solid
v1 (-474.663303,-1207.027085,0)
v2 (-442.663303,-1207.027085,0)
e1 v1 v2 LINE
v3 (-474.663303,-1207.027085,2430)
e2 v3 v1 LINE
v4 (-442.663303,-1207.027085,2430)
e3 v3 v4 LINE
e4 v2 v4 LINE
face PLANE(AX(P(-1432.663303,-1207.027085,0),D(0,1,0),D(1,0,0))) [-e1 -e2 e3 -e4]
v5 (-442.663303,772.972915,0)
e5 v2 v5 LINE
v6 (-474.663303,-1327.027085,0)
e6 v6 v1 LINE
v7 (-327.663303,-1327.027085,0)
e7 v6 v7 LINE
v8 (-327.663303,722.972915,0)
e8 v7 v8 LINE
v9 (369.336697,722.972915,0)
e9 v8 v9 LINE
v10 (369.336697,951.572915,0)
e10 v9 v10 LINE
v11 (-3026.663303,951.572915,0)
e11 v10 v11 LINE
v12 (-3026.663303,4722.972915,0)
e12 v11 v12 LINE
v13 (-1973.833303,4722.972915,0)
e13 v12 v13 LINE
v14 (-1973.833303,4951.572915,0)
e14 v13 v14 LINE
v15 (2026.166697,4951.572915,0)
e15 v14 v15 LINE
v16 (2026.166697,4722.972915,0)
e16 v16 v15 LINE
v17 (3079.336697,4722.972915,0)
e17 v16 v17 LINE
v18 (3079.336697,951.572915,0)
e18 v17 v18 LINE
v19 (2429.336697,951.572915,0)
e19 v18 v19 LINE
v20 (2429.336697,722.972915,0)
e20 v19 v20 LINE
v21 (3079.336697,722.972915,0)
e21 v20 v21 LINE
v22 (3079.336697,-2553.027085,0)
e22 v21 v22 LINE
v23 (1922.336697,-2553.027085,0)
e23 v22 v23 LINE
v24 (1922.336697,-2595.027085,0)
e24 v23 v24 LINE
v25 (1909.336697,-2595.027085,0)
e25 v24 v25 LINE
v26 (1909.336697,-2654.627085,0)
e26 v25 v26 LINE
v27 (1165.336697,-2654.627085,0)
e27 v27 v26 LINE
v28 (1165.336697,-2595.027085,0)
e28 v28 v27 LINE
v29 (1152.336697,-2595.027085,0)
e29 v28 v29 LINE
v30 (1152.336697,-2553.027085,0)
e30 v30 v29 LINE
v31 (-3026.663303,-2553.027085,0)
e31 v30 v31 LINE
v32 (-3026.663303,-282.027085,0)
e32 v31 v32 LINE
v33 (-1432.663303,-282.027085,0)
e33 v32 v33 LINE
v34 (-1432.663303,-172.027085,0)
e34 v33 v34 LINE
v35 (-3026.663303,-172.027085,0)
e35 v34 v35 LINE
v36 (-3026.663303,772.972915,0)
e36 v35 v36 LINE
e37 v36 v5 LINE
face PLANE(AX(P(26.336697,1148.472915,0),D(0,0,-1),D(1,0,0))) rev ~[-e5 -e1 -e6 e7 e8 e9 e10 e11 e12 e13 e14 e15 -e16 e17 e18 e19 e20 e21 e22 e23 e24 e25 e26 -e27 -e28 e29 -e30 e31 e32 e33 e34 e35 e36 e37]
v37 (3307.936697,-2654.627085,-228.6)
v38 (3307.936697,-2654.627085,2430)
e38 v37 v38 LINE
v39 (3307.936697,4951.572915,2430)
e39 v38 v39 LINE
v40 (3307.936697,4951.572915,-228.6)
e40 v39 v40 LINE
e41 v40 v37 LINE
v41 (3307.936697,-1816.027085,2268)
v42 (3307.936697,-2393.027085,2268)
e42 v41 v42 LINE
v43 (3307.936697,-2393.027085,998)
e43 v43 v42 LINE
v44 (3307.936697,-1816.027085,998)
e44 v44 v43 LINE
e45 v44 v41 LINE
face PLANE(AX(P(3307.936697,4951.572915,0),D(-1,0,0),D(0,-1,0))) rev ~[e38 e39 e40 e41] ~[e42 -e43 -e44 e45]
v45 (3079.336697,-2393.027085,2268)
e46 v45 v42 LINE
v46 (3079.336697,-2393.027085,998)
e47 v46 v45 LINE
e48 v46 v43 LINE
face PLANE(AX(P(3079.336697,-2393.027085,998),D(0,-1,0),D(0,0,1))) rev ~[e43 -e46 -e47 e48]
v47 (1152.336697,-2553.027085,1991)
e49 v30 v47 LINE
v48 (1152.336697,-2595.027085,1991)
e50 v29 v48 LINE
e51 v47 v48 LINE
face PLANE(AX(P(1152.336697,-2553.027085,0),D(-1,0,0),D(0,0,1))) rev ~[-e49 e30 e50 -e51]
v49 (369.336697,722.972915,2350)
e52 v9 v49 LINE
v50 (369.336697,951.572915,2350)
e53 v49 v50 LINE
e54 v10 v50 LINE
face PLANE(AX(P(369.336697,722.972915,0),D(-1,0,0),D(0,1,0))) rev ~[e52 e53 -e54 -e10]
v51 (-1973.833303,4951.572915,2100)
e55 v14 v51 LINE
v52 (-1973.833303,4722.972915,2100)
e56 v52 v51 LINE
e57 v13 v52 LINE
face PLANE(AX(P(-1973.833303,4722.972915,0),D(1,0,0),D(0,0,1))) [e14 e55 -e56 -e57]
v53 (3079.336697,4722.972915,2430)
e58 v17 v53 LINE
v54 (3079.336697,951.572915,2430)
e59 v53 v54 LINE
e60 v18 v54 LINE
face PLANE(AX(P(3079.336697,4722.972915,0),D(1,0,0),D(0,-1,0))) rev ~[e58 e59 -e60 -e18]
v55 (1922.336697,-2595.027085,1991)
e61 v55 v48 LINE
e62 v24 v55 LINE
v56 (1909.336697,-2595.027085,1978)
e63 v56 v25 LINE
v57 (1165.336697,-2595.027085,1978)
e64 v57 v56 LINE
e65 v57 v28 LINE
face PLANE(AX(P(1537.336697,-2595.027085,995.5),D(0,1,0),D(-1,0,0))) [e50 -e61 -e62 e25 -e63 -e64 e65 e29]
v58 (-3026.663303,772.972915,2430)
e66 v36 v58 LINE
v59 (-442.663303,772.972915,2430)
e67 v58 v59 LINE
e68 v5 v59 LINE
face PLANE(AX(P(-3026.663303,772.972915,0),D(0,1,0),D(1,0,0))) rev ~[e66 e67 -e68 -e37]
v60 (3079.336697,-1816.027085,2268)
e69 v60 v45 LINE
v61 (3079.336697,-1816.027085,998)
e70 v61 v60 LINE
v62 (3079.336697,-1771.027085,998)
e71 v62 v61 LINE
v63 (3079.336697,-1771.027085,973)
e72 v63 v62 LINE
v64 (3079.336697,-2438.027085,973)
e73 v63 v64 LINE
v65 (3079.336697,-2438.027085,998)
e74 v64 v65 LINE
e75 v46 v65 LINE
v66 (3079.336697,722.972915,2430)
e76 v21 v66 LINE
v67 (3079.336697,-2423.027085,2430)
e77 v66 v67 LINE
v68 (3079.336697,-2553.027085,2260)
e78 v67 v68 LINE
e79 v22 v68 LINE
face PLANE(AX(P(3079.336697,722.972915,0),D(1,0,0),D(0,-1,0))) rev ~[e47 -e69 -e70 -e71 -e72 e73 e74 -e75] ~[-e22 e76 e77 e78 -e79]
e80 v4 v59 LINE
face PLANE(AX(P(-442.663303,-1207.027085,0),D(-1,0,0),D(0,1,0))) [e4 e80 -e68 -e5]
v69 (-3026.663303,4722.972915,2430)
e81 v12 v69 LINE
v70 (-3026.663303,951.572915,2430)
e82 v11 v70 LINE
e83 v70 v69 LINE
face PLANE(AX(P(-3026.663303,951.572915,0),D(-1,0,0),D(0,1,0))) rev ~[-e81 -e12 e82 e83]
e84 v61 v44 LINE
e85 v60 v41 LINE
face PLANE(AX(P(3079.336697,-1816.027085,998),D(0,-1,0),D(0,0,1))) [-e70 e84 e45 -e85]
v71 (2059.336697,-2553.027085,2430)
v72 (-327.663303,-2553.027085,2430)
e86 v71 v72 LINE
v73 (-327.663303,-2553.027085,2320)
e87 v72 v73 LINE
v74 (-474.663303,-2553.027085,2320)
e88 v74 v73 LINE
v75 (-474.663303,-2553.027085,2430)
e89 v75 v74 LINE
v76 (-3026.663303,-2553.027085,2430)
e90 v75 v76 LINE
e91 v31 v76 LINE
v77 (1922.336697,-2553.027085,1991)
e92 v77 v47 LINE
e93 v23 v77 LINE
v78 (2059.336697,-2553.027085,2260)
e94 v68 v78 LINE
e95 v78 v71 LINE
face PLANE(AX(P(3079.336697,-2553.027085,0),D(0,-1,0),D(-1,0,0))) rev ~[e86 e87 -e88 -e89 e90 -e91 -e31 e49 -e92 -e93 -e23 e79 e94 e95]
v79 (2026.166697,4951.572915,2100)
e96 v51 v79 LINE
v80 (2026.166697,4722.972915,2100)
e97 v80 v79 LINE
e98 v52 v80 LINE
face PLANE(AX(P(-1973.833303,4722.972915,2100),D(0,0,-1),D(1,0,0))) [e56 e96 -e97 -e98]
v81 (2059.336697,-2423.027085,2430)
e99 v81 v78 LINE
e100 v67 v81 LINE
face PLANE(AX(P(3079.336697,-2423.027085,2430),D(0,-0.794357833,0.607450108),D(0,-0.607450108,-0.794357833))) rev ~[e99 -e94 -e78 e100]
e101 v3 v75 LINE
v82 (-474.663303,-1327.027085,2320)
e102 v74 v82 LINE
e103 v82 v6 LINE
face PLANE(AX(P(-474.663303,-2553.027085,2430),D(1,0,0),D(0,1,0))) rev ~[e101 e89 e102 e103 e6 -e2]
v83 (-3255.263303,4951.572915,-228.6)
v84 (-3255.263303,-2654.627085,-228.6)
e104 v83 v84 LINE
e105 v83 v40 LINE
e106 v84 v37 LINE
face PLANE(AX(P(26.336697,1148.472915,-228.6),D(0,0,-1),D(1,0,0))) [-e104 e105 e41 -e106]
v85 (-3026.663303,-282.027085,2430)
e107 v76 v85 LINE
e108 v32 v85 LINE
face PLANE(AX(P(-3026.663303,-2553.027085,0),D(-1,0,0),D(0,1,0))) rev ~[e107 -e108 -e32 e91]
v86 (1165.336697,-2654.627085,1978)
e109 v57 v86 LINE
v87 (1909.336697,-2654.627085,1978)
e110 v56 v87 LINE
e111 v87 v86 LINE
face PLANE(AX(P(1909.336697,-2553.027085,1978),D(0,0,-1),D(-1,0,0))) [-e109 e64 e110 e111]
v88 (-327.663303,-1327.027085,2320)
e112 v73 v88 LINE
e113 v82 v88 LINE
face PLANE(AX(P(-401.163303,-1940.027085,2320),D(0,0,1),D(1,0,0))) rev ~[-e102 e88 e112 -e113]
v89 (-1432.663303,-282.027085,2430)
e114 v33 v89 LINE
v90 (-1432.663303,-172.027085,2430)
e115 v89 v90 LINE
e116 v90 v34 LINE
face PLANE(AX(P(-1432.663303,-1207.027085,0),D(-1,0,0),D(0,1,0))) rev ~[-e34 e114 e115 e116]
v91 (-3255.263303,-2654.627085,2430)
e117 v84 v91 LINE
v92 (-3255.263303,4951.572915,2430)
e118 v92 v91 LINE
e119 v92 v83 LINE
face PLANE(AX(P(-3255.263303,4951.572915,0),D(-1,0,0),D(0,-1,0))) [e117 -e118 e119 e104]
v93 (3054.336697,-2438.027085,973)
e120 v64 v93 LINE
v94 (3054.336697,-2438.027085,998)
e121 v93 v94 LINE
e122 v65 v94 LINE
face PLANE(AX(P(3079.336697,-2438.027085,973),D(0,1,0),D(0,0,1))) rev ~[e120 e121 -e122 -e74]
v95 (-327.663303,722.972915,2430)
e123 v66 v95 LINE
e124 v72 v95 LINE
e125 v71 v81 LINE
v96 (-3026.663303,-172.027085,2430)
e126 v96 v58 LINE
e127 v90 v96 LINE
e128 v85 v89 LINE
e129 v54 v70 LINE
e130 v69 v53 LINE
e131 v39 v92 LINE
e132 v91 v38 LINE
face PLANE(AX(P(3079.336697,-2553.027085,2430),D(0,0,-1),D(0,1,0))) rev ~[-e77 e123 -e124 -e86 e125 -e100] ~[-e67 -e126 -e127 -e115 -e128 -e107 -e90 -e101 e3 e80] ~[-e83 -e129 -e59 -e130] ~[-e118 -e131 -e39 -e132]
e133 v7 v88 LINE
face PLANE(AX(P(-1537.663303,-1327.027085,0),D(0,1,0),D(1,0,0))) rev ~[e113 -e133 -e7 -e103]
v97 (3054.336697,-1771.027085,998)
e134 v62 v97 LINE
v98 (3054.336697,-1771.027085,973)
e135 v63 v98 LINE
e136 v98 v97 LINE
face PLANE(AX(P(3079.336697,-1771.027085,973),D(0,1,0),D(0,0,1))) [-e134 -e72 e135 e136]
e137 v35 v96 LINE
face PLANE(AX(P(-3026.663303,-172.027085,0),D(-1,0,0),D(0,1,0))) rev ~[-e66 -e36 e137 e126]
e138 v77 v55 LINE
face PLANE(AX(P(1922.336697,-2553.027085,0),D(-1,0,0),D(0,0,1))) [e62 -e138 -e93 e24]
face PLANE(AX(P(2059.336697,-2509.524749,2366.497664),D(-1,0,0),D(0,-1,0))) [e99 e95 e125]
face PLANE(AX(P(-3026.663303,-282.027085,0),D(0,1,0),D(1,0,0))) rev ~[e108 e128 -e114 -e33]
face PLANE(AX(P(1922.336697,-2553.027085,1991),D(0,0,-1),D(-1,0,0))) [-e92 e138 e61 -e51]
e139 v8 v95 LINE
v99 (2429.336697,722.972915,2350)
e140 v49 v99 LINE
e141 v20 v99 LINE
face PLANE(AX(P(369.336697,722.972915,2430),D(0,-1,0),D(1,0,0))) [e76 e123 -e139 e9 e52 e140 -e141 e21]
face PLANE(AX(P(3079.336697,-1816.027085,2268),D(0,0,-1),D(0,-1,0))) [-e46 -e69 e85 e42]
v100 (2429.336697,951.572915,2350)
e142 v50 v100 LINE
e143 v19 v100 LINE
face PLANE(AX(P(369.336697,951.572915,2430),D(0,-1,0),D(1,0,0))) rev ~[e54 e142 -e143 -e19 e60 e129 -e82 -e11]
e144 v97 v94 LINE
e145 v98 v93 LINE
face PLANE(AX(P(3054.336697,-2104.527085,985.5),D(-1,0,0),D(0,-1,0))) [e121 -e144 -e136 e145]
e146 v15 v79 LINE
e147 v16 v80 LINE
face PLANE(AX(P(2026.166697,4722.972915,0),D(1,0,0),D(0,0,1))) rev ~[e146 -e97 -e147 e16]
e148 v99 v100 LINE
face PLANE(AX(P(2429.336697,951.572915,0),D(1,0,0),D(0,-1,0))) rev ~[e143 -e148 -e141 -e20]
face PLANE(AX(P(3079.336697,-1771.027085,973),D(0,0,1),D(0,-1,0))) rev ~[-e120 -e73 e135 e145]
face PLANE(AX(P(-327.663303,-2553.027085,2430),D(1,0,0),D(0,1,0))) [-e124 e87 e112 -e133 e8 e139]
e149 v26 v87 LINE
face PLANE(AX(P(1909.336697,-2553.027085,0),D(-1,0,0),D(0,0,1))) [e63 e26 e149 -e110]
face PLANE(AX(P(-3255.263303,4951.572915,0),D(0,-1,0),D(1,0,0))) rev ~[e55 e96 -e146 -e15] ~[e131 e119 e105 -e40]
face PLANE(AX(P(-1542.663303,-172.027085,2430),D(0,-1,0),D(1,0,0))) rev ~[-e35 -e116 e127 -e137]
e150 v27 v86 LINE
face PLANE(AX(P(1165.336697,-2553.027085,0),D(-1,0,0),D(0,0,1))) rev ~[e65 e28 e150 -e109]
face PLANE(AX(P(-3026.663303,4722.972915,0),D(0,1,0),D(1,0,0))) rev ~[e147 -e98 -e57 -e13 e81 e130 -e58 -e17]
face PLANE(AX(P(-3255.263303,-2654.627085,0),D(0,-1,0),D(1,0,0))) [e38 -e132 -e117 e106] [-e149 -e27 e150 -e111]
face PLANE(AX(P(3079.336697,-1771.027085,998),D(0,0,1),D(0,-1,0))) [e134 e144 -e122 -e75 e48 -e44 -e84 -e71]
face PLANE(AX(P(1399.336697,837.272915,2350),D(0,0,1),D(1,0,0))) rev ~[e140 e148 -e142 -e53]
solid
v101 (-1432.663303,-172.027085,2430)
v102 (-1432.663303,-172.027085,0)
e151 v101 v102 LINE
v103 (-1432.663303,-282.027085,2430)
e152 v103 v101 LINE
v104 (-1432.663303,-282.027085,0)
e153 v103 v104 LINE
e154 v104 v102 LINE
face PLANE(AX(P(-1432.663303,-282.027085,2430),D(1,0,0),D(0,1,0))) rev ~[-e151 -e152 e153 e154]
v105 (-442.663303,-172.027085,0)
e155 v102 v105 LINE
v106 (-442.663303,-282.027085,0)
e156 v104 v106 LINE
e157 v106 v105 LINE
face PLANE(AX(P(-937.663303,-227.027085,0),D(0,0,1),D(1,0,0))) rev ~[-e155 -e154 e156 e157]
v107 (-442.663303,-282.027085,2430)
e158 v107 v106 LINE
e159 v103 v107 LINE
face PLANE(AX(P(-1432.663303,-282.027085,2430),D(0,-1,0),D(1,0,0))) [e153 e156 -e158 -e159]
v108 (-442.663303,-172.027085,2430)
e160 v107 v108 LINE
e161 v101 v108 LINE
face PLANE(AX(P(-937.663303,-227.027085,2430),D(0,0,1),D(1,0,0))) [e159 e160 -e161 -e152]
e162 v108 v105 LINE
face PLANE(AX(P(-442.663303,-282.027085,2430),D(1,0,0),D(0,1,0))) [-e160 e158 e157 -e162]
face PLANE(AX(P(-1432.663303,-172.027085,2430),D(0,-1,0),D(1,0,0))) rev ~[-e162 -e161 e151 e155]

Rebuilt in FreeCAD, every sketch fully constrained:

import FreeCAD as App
import Part
import Sketcher

V = App.Vector

doc = App.newDocument("Part")
body = doc.addObject("PartDesign::Body", "Body")

# Sketch on XY plane
sketch1 = body.newObject("Sketcher::SketchObject", "Sketch")
sketch1.AttachmentSupport = (doc.getObject("XY_Plane"), [""])
sketch1.MapMode = "FlatFace"
sketch1.addGeometry(Part.LineSegment(V(-3255, 4952, 0), V(-3255, -2655, 0)), False)
sketch1.addGeometry(Part.LineSegment(V(-3255, -2655, 0), V(3308, -2655, 0)), False)
sketch1.addGeometry(Part.LineSegment(V(3308, -2655, 0), V(3308, 4952, 0)), False)
sketch1.addGeometry(Part.LineSegment(V(3308, 4952, 0), V(-3255, 4952, 0)), False)
sketch1.addGeometry(Part.LineSegment(V(-1671, -2553, 0), V(-3027, -2553, 0)), False)
sketch1.addGeometry(Part.LineSegment(V(-3027, -2553, 0), V(-3027, -1327, 0)), False)
sketch1.addGeometry(Part.LineSegment(V(-3027, -1327, 0), V(-1671, -1327, 0)), False)
sketch1.addGeometry(Part.LineSegment(V(-1671, -1327, 0), V(-1671, -2553, 0)), False)
sketch1.addGeometry(Part.LineSegment(V(-1543, -1212, 0), V(-3027, -1212, 0)), False)
sketch1.addGeometry(Part.LineSegment(V(-3027, -1212, 0), V(-3027, -282, 0)), False)
sketch1.addGeometry(Part.LineSegment(V(-3027, -282, 0), V(-1543, -282, 0)), False)
sketch1.addGeometry(Part.LineSegment(V(-1543, -282, 0), V(-1543, -1212, 0)), False)
sketch1.addGeometry(Part.LineSegment(V(-3027, -172, 0), V(-3027, 773, 0)), False)
sketch1.addGeometry(Part.LineSegment(V(-3027, 773, 0), V(-1543, 773, 0)), False)
sketch1.addGeometry(Part.LineSegment(V(-1543, 773, 0), V(-1543, -172, 0)), False)
sketch1.addGeometry(Part.LineSegment(V(-1543, -172, 0), V(-3027, -172, 0)), False)
sketch1.addGeometry(Part.LineSegment(V(-443, -1207, 0), V(-1433, -1207, 0)), False)
sketch1.addGeometry(Part.LineSegment(V(-1433, -1207, 0), V(-1433, 773, 0)), False)
sketch1.addGeometry(Part.LineSegment(V(-1433, 773, 0), V(-443, 773, 0)), False)
sketch1.addGeometry(Part.LineSegment(V(-443, 773, 0), V(-443, -1207, 0)), False)
sketch1.addGeometry(Part.LineSegment(V(369, 723, 0), V(369, 952, 0)), False)
sketch1.addGeometry(Part.LineSegment(V(369, 952, 0), V(-3027, 952, 0)), False)
sketch1.addGeometry(Part.LineSegment(V(-3027, 952, 0), V(-3027, 4723, 0)), False)
sketch1.addGeometry(Part.LineSegment(V(-3027, 4723, 0), V(3079, 4723, 0)), False)
sketch1.addGeometry(Part.LineSegment(V(3079, 4723, 0), V(3079, 952, 0)), False)
sketch1.addGeometry(Part.LineSegment(V(3079, 952, 0), V(2429, 952, 0)), False)
sketch1.addGeometry(Part.LineSegment(V(2429, 952, 0), V(2429, 723, 0)), False)
sketch1.addGeometry(Part.LineSegment(V(2429, 723, 0), V(3079, 723, 0)), False)
sketch1.addGeometry(Part.LineSegment(V(3079, 723, 0), V(3079, -2553, 0)), False)
sketch1.addGeometry(Part.LineSegment(V(3079, -2553, 0), V(-1538, -2553, 0)), False)
sketch1.addGeometry(Part.LineSegment(V(-1538, -2553, 0), V(-1538, -1327, 0)), False)
sketch1.addGeometry(Part.LineSegment(V(-1538, -1327, 0), V(-328, -1327, 0)), False)
sketch1.addGeometry(Part.LineSegment(V(-328, -1327, 0), V(-328, 723, 0)), False)
sketch1.addGeometry(Part.LineSegment(V(-328, 723, 0), V(369, 723, 0)), False)
sketch1.addConstraint(Sketcher.Constraint("Coincident", 0, 2, 1, 1))
sketch1.addConstraint(Sketcher.Constraint("Coincident", 1, 2, 2, 1))
sketch1.addConstraint(Sketcher.Constraint("Coincident", 2, 2, 3, 1))
sketch1.addConstraint(Sketcher.Constraint("Coincident", 3, 2, 0, 1))
sketch1.addConstraint(Sketcher.Constraint("Coincident", 4, 2, 5, 1))
sketch1.addConstraint(Sketcher.Constraint("Coincident", 5, 2, 6, 1))
sketch1.addConstraint(Sketcher.Constraint("Coincident", 6, 2, 7, 1))
sketch1.addConstraint(Sketcher.Constraint("Coincident", 7, 2, 4, 1))
sketch1.addConstraint(Sketcher.Constraint("Coincident", 8, 2, 9, 1))
sketch1.addConstraint(Sketcher.Constraint("Coincident", 9, 2, 10, 1))
sketch1.addConstraint(Sketcher.Constraint("Coincident", 10, 2, 11, 1))
sketch1.addConstraint(Sketcher.Constraint("Coincident", 11, 2, 8, 1))
sketch1.addConstraint(Sketcher.Constraint("Coincident", 12, 2, 13, 1))
sketch1.addConstraint(Sketcher.Constraint("Coincident", 13, 2, 14, 1))
sketch1.addConstraint(Sketcher.Constraint("Coincident", 14, 2, 15, 1))
sketch1.addConstraint(Sketcher.Constraint("Coincident", 15, 2, 12, 1))
sketch1.addConstraint(Sketcher.Constraint("Coincident", 16, 2, 17, 1))
sketch1.addConstraint(Sketcher.Constraint("Coincident", 17, 2, 18, 1))
sketch1.addConstraint(Sketcher.Constraint("Coincident", 18, 2, 19, 1))
sketch1.addConstraint(Sketcher.Constraint("Coincident", 19, 2, 16, 1))
sketch1.addConstraint(Sketcher.Constraint("Coincident", 20, 2, 21, 1))
sketch1.addConstraint(Sketcher.Constraint("Coincident", 21, 2, 22, 1))
sketch1.addConstraint(Sketcher.Constraint("Coincident", 22, 2, 23, 1))
sketch1.addConstraint(Sketcher.Constraint("Coincident", 23, 2, 24, 1))
sketch1.addConstraint(Sketcher.Constraint("Coincident", 24, 2, 25, 1))
sketch1.addConstraint(Sketcher.Constraint("Coincident", 25, 2, 26, 1))
sketch1.addConstraint(Sketcher.Constraint("Coincident", 26, 2, 27, 1))
sketch1.addConstraint(Sketcher.Constraint("Coincident", 27, 2, 28, 1))
sketch1.addConstraint(Sketcher.Constraint("Coincident", 28, 2, 29, 1))
sketch1.addConstraint(Sketcher.Constraint("Coincident", 29, 2, 30, 1))
sketch1.addConstraint(Sketcher.Constraint("Coincident", 30, 2, 31, 1))
sketch1.addConstraint(Sketcher.Constraint("Coincident", 31, 2, 32, 1))
sketch1.addConstraint(Sketcher.Constraint("Coincident", 32, 2, 33, 1))
sketch1.addConstraint(Sketcher.Constraint("Coincident", 33, 2, 20, 1))
sketch1.addConstraint(Sketcher.Constraint("Vertical", 0))
sketch1.addConstraint(Sketcher.Constraint("Horizontal", 1))
sketch1.addConstraint(Sketcher.Constraint("Vertical", 2))
sketch1.addConstraint(Sketcher.Constraint("Horizontal", 3))
sketch1.addConstraint(Sketcher.Constraint("Horizontal", 4))
sketch1.addConstraint(Sketcher.Constraint("Vertical", 5))
sketch1.addConstraint(Sketcher.Constraint("Horizontal", 6))
sketch1.addConstraint(Sketcher.Constraint("Vertical", 7))
sketch1.addConstraint(Sketcher.Constraint("Horizontal", 8))
sketch1.addConstraint(Sketcher.Constraint("Vertical", 9))
sketch1.addConstraint(Sketcher.Constraint("Horizontal", 10))
sketch1.addConstraint(Sketcher.Constraint("Vertical", 11))
sketch1.addConstraint(Sketcher.Constraint("Vertical", 12))
sketch1.addConstraint(Sketcher.Constraint("Horizontal", 13))
sketch1.addConstraint(Sketcher.Constraint("Vertical", 14))
sketch1.addConstraint(Sketcher.Constraint("Horizontal", 15))
sketch1.addConstraint(Sketcher.Constraint("Horizontal", 16))
sketch1.addConstraint(Sketcher.Constraint("Vertical", 17))
sketch1.addConstraint(Sketcher.Constraint("Horizontal", 18))
sketch1.addConstraint(Sketcher.Constraint("Vertical", 19))
sketch1.addConstraint(Sketcher.Constraint("Vertical", 20))
sketch1.addConstraint(Sketcher.Constraint("Horizontal", 21))
sketch1.addConstraint(Sketcher.Constraint("Vertical", 22))
sketch1.addConstraint(Sketcher.Constraint("Horizontal", 23))
sketch1.addConstraint(Sketcher.Constraint("Vertical", 24))
sketch1.addConstraint(Sketcher.Constraint("Horizontal", 25))
sketch1.addConstraint(Sketcher.Constraint("Vertical", 26))
sketch1.addConstraint(Sketcher.Constraint("Horizontal", 27))
sketch1.addConstraint(Sketcher.Constraint("Vertical", 28))
sketch1.addConstraint(Sketcher.Constraint("Horizontal", 29))
sketch1.addConstraint(Sketcher.Constraint("Vertical", 30))
sketch1.addConstraint(Sketcher.Constraint("Horizontal", 31))
sketch1.addConstraint(Sketcher.Constraint("Vertical", 32))
sketch1.addConstraint(Sketcher.Constraint("Horizontal", 33))
sketch1.addConstraint(Sketcher.Constraint("Horizontal", 13, 2, 17, 2))
sketch1.addConstraint(Sketcher.Constraint("Horizontal", 21, 2, 24, 2))
sketch1.addConstraint(Sketcher.Constraint("Horizontal", 7, 2, 28, 2))
sketch1.addConstraint(Sketcher.Constraint("Horizontal", 6, 2, 30, 2))
sketch1.addConstraint(Sketcher.Constraint("Horizontal", 27, 2, 32, 2))
sketch1.addConstraint(Sketcher.Constraint("Vertical", 5, 2, 8, 2))
sketch1.addConstraint(Sketcher.Constraint("Vertical", 9, 2, 12, 2))
sketch1.addConstraint(Sketcher.Constraint("Vertical", 11, 2, 13, 2))
sketch1.addConstraint(Sketcher.Constraint("Vertical", 15, 2, 21, 2))
sketch1.addConstraint(Sketcher.Constraint("Vertical", 24, 2, 27, 2))
sketch1.addConstraint(Sketcher.Constraint("DistanceX", 4, 2, 4, 1, 1356.0))
sketch1.addConstraint(Sketcher.Constraint("DistanceX", 8, 2, 8, 1, 1484.0))
sketch1.addConstraint(Sketcher.Constraint("DistanceX", 16, 2, 16, 1, 990.0))
sketch1.addConstraint(Sketcher.Constraint("DistanceX", 21, 2, 21, 1, 3396.0))
sketch1.addConstraint(Sketcher.Constraint("DistanceX", 23, 1, 23, 2, 6106.0))
sketch1.addConstraint(Sketcher.Constraint("DistanceX", 25, 2, 25, 1, 650.0))
sketch1.addConstraint(Sketcher.Constraint("DistanceX", 29, 2, 29, 1, 4617.0))
sketch1.addConstraint(Sketcher.Constraint("DistanceX", 31, 1, 31, 2, 1210.0))
sketch1.addConstraint(Sketcher.Constraint("DistanceY", 5, 1, 5, 2, 1226.0))
sketch1.addConstraint(Sketcher.Constraint("DistanceY", 9, 1, 9, 2, 930.0))
sketch1.addConstraint(Sketcher.Constraint("DistanceY", 12, 1, 12, 2, 945.0))
sketch1.addConstraint(Sketcher.Constraint("DistanceY", 17, 1, 17, 2, 1980.0))
sketch1.addConstraint(Sketcher.Constraint("DistanceY", 28, 2, 28, 1, 3276.0))
sketch1.addConstraint(Sketcher.Constraint("DistanceX", 1, 1, 1, 2, 6563.2))
sketch1.addConstraint(Sketcher.Constraint("DistanceY", 0, 2, 0, 1, 7606.2))
sketch1.addConstraint(Sketcher.Constraint("DistanceY", 20, 1, 20, 2, 228.6))
sketch1.addConstraint(Sketcher.Constraint("DistanceY", 22, 1, 22, 2, 3771.4))
sketch1.addConstraint(Sketcher.Constraint("DistanceY", 5, 2, 8, 2, 115.0))
sketch1.addConstraint(Sketcher.Constraint("DistanceY", 9, 2, 12, 2, 1055.0))
sketch1.addConstraint(Sketcher.Constraint("DistanceX", 11, 2, 16, 2, 110.0))
sketch1.addConstraint(Sketcher.Constraint("DistanceY", 24, 2, 2, 2, 4000.0))
sketch1.addConstraint(Sketcher.Constraint("DistanceX", 0, 2, 4, 2, 228.6))
sketch1.addConstraint(Sketcher.Constraint("DistanceX", 0, 2, -1, 1, 3255.263303))
sketch1.addConstraint(Sketcher.Constraint("DistanceY", 0, 2, -1, 1, 2654.627085))
pad1 = body.newObject("PartDesign::Pad", "Pad")
pad1.Profile = sketch1
pad1.Length = 2430

# Sketch on XY plane
sketch2 = body.newObject("Sketcher::SketchObject", "Sketch001")
sketch2.AttachmentSupport = (doc.getObject("XY_Plane"), [""])
sketch2.MapMode = "FlatFace"
sketch2.AttachmentOffset = App.Placement(V(0, 0, 2430), App.Rotation())
sketch2.addGeometry(Part.LineSegment(V(-475, -1327, 0), V(-475, -2553, 0)), False)
sketch2.addGeometry(Part.LineSegment(V(-475, -2553, 0), V(-328, -2553, 0)), False)
sketch2.addGeometry(Part.LineSegment(V(-328, -2553, 0), V(-328, -1327, 0)), False)
sketch2.addGeometry(Part.LineSegment(V(-328, -1327, 0), V(-475, -1327, 0)), False)
sketch2.addConstraint(Sketcher.Constraint("Coincident", 0, 2, 1, 1))
sketch2.addConstraint(Sketcher.Constraint("Coincident", 1, 2, 2, 1))
sketch2.addConstraint(Sketcher.Constraint("Coincident", 2, 2, 3, 1))
sketch2.addConstraint(Sketcher.Constraint("Coincident", 3, 2, 0, 1))
sketch2.addConstraint(Sketcher.Constraint("Vertical", 0))
sketch2.addConstraint(Sketcher.Constraint("Horizontal", 1))
sketch2.addConstraint(Sketcher.Constraint("Vertical", 2))
sketch2.addConstraint(Sketcher.Constraint("Horizontal", 3))
sketch2.addConstraint(Sketcher.Constraint("DistanceX", 1, 1, 1, 2, 147.0))
sketch2.addConstraint(Sketcher.Constraint("DistanceY", 0, 2, 0, 1, 1226.0))
sketch2.addConstraint(Sketcher.Constraint("DistanceX", 0, 2, -1, 1, 474.663303))
sketch2.addConstraint(Sketcher.Constraint("DistanceY", 0, 2, -1, 1, 2553.027085))
pad2 = body.newObject("PartDesign::Pad", "Pad001")
pad2.Profile = sketch2
pad2.Length = 110
pad2.Reversed = True

# Sketch on XY plane
sketch3 = body.newObject("Sketcher::SketchObject", "Sketch002")
sketch3.AttachmentSupport = (doc.getObject("XY_Plane"), [""])
sketch3.MapMode = "FlatFace"
sketch3.AttachmentOffset = App.Placement(V(0, 0, 2430), App.Rotation())
sketch3.addGeometry(Part.LineSegment(V(369, 952, 0), V(369, 723, 0)), False)
sketch3.addGeometry(Part.LineSegment(V(369, 723, 0), V(2429, 723, 0)), False)
sketch3.addGeometry(Part.LineSegment(V(2429, 723, 0), V(2429, 952, 0)), False)
sketch3.addGeometry(Part.LineSegment(V(2429, 952, 0), V(369, 952, 0)), False)
sketch3.addConstraint(Sketcher.Constraint("Coincident", 0, 2, 1, 1))
sketch3.addConstraint(Sketcher.Constraint("Coincident", 1, 2, 2, 1))
sketch3.addConstraint(Sketcher.Constraint("Coincident", 2, 2, 3, 1))
sketch3.addConstraint(Sketcher.Constraint("Coincident", 3, 2, 0, 1))
sketch3.addConstraint(Sketcher.Constraint("Vertical", 0))
sketch3.addConstraint(Sketcher.Constraint("Horizontal", 1))
sketch3.addConstraint(Sketcher.Constraint("Vertical", 2))
sketch3.addConstraint(Sketcher.Constraint("Horizontal", 3))
sketch3.addConstraint(Sketcher.Constraint("DistanceX", 1, 1, 1, 2, 2060.0))
sketch3.addConstraint(Sketcher.Constraint("DistanceY", 0, 2, 0, 1, 228.6))
sketch3.addConstraint(Sketcher.Constraint("DistanceX", -1, 1, 0, 2, 369.336697))
sketch3.addConstraint(Sketcher.Constraint("DistanceY", -1, 1, 0, 2, 722.972915))
pad3 = body.newObject("PartDesign::Pad", "Pad002")
pad3.Profile = sketch3
pad3.Length = 80
pad3.Reversed = True

# Sketch on YZ plane
sketch4 = body.newObject("Sketcher::SketchObject", "Sketch003")
sketch4.AttachmentSupport = (doc.getObject("YZ_Plane"), [""])
sketch4.MapMode = "FlatFace"
sketch4.AttachmentOffset = App.Placement(V(0, 0, 3079.336697), App.Rotation())
sketch4.addGeometry(Part.LineSegment(V(-1816, 2268, 0), V(-1816, 998, 0)), False)
sketch4.addGeometry(Part.LineSegment(V(-1816, 998, 0), V(-2393, 998, 0)), False)
sketch4.addGeometry(Part.LineSegment(V(-2393, 998, 0), V(-2393, 2268, 0)), False)
sketch4.addGeometry(Part.LineSegment(V(-2393, 2268, 0), V(-1816, 2268, 0)), False)
sketch4.addConstraint(Sketcher.Constraint("Coincident", 0, 2, 1, 1))
sketch4.addConstraint(Sketcher.Constraint("Coincident", 1, 2, 2, 1))
sketch4.addConstraint(Sketcher.Constraint("Coincident", 2, 2, 3, 1))
sketch4.addConstraint(Sketcher.Constraint("Coincident", 3, 2, 0, 1))
sketch4.addConstraint(Sketcher.Constraint("Vertical", 0))
sketch4.addConstraint(Sketcher.Constraint("Horizontal", 1))
sketch4.addConstraint(Sketcher.Constraint("Vertical", 2))
sketch4.addConstraint(Sketcher.Constraint("Horizontal", 3))
sketch4.addConstraint(Sketcher.Constraint("DistanceX", 1, 2, 1, 1, 577.0))
sketch4.addConstraint(Sketcher.Constraint("DistanceY", 0, 2, 0, 1, 1270.0))
sketch4.addConstraint(Sketcher.Constraint("DistanceY", -1, 1, 0, 2, 998.0))
sketch4.addConstraint(Sketcher.Constraint("DistanceX", 0, 2, -1, 1, 1816.027085))
pocket1 = body.newObject("PartDesign::Pocket", "Pocket")
pocket1.Profile = sketch4
pocket1.Type = "ThroughAll"
pocket1.Reversed = True

# Sketch on YZ plane
sketch5 = body.newObject("Sketcher::SketchObject", "Sketch004")
sketch5.AttachmentSupport = (doc.getObject("YZ_Plane"), [""])
sketch5.MapMode = "FlatFace"
sketch5.AttachmentOffset = App.Placement(V(0, 0, 3079.336697), App.Rotation())
sketch5.addGeometry(Part.LineSegment(V(-1771, 998, 0), V(-1771, 973, 0)), False)
sketch5.addGeometry(Part.LineSegment(V(-1771, 973, 0), V(-2438, 973, 0)), False)
sketch5.addGeometry(Part.LineSegment(V(-2438, 973, 0), V(-2438, 998, 0)), False)
sketch5.addGeometry(Part.LineSegment(V(-2438, 998, 0), V(-1771, 998, 0)), False)
sketch5.addConstraint(Sketcher.Constraint("Coincident", 0, 2, 1, 1))
sketch5.addConstraint(Sketcher.Constraint("Coincident", 1, 2, 2, 1))
sketch5.addConstraint(Sketcher.Constraint("Coincident", 2, 2, 3, 1))
sketch5.addConstraint(Sketcher.Constraint("Coincident", 3, 2, 0, 1))
sketch5.addConstraint(Sketcher.Constraint("Vertical", 0))
sketch5.addConstraint(Sketcher.Constraint("Horizontal", 1))
sketch5.addConstraint(Sketcher.Constraint("Vertical", 2))
sketch5.addConstraint(Sketcher.Constraint("Horizontal", 3))
sketch5.addConstraint(Sketcher.Constraint("DistanceX", 1, 2, 1, 1, 667.0))
sketch5.addConstraint(Sketcher.Constraint("DistanceY", 0, 2, 0, 1, 25.0))
sketch5.addConstraint(Sketcher.Constraint("DistanceY", -1, 1, 0, 2, 973.0))
sketch5.addConstraint(Sketcher.Constraint("DistanceX", 0, 2, -1, 1, 1771.027085))
pad4 = body.newObject("PartDesign::Pad", "Pad003")
pad4.Profile = sketch5
pad4.Length = 25
pad4.Reversed = True

# Sketch on XZ plane
sketch6 = body.newObject("Sketcher::SketchObject", "Sketch005")
sketch6.AttachmentSupport = (doc.getObject("XZ_Plane"), [""])
sketch6.MapMode = "FlatFace"
sketch6.AttachmentOffset = App.Placement(V(0, 0, -4722.972915), App.Rotation())
sketch6.addGeometry(Part.LineSegment(V(-1974, 2100, 0), V(-1974, 0, 0)), False)
sketch6.addGeometry(Part.LineSegment(V(-1974, 0, 0), V(2026, 0, 0)), False)
sketch6.addGeometry(Part.LineSegment(V(2026, 0, 0), V(2026, 2100, 0)), False)
sketch6.addGeometry(Part.LineSegment(V(2026, 2100, 0), V(-1974, 2100, 0)), False)
sketch6.addConstraint(Sketcher.Constraint("Coincident", 0, 2, 1, 1))
sketch6.addConstraint(Sketcher.Constraint("Coincident", 1, 2, 2, 1))
sketch6.addConstraint(Sketcher.Constraint("Coincident", 2, 2, 3, 1))
sketch6.addConstraint(Sketcher.Constraint("Coincident", 3, 2, 0, 1))
sketch6.addConstraint(Sketcher.Constraint("Vertical", 0))
sketch6.addConstraint(Sketcher.Constraint("Horizontal", 1))
sketch6.addConstraint(Sketcher.Constraint("Vertical", 2))
sketch6.addConstraint(Sketcher.Constraint("Horizontal", 3))
sketch6.addConstraint(Sketcher.Constraint("PointOnObject", 0, 2, -1))
sketch6.addConstraint(Sketcher.Constraint("DistanceX", 1, 1, 1, 2, 4000.0))
sketch6.addConstraint(Sketcher.Constraint("DistanceY", 0, 2, 0, 1, 2100.0))
sketch6.addConstraint(Sketcher.Constraint("DistanceX", 0, 2, -1, 1, 1973.833303))
pocket2 = body.newObject("PartDesign::Pocket", "Pocket001")
pocket2.Profile = sketch6
pocket2.Type = "ThroughAll"

# Sketch on XZ plane
sketch7 = body.newObject("Sketcher::SketchObject", "Sketch006")
sketch7.AttachmentSupport = (doc.getObject("XZ_Plane"), [""])
sketch7.MapMode = "FlatFace"
sketch7.AttachmentOffset = App.Placement(V(0, 0, 2553.027085), App.Rotation())
sketch7.addGeometry(Part.LineSegment(V(1909, 1978, 0), V(1909, 0, 0)), False)
sketch7.addGeometry(Part.LineSegment(V(1909, 0, 0), V(1165, 0, 0)), False)
sketch7.addGeometry(Part.LineSegment(V(1165, 0, 0), V(1165, 1978, 0)), False)
sketch7.addGeometry(Part.LineSegment(V(1165, 1978, 0), V(1909, 1978, 0)), False)
sketch7.addConstraint(Sketcher.Constraint("Coincident", 0, 2, 1, 1))
sketch7.addConstraint(Sketcher.Constraint("Coincident", 1, 2, 2, 1))
sketch7.addConstraint(Sketcher.Constraint("Coincident", 2, 2, 3, 1))
sketch7.addConstraint(Sketcher.Constraint("Coincident", 3, 2, 0, 1))
sketch7.addConstraint(Sketcher.Constraint("Vertical", 0))
sketch7.addConstraint(Sketcher.Constraint("Horizontal", 1))
sketch7.addConstraint(Sketcher.Constraint("Vertical", 2))
sketch7.addConstraint(Sketcher.Constraint("Horizontal", 3))
sketch7.addConstraint(Sketcher.Constraint("PointOnObject", 0, 2, -1))
sketch7.addConstraint(Sketcher.Constraint("DistanceX", 1, 2, 1, 1, 744.0))
sketch7.addConstraint(Sketcher.Constraint("DistanceY", 0, 2, 0, 1, 1978.0))
sketch7.addConstraint(Sketcher.Constraint("DistanceX", -1, 1, 0, 2, 1909.336697))
pocket3 = body.newObject("PartDesign::Pocket", "Pocket002")
pocket3.Profile = sketch7
pocket3.Type = "ThroughAll"
pocket3.Reversed = True

# Sketch on XZ plane
sketch8 = body.newObject("Sketcher::SketchObject", "Sketch007")
sketch8.AttachmentSupport = (doc.getObject("XZ_Plane"), [""])
sketch8.MapMode = "FlatFace"
sketch8.AttachmentOffset = App.Placement(V(0, 0, 2553.027085), App.Rotation())
sketch8.addGeometry(Part.LineSegment(V(1922, 1991, 0), V(1922, 0, 0)), False)
sketch8.addGeometry(Part.LineSegment(V(1922, 0, 0), V(1152, 0, 0)), False)
sketch8.addGeometry(Part.LineSegment(V(1152, 0, 0), V(1152, 1991, 0)), False)
sketch8.addGeometry(Part.LineSegment(V(1152, 1991, 0), V(1922, 1991, 0)), False)
sketch8.addConstraint(Sketcher.Constraint("Coincident", 0, 2, 1, 1))
sketch8.addConstraint(Sketcher.Constraint("Coincident", 1, 2, 2, 1))
sketch8.addConstraint(Sketcher.Constraint("Coincident", 2, 2, 3, 1))
sketch8.addConstraint(Sketcher.Constraint("Coincident", 3, 2, 0, 1))
sketch8.addConstraint(Sketcher.Constraint("Vertical", 0))
sketch8.addConstraint(Sketcher.Constraint("Horizontal", 1))
sketch8.addConstraint(Sketcher.Constraint("Vertical", 2))
sketch8.addConstraint(Sketcher.Constraint("Horizontal", 3))
sketch8.addConstraint(Sketcher.Constraint("PointOnObject", 0, 2, -1))
sketch8.addConstraint(Sketcher.Constraint("DistanceX", 1, 2, 1, 1, 770.0))
sketch8.addConstraint(Sketcher.Constraint("DistanceY", 0, 2, 0, 1, 1991.0))
sketch8.addConstraint(Sketcher.Constraint("DistanceX", -1, 1, 0, 2, 1922.336697))
pocket4 = body.newObject("PartDesign::Pocket", "Pocket003")
pocket4.Profile = sketch8
pocket4.Length = 42
pocket4.Reversed = True

# Sketch on XY plane
sketch9 = body.newObject("Sketcher::SketchObject", "Sketch008")
sketch9.AttachmentSupport = (doc.getObject("XY_Plane"), [""])
sketch9.MapMode = "FlatFace"
sketch9.addGeometry(Part.LineSegment(V(-3255, -2655, 0), V(-3255, 4952, 0)), False)
sketch9.addGeometry(Part.LineSegment(V(-3255, 4952, 0), V(3308, 4952, 0)), False)
sketch9.addGeometry(Part.LineSegment(V(3308, 4952, 0), V(3308, -2655, 0)), False)
sketch9.addGeometry(Part.LineSegment(V(3308, -2655, 0), V(-3255, -2655, 0)), False)
sketch9.addConstraint(Sketcher.Constraint("Coincident", 0, 2, 1, 1))
sketch9.addConstraint(Sketcher.Constraint("Coincident", 1, 2, 2, 1))
sketch9.addConstraint(Sketcher.Constraint("Coincident", 2, 2, 3, 1))
sketch9.addConstraint(Sketcher.Constraint("Coincident", 3, 2, 0, 1))
sketch9.addConstraint(Sketcher.Constraint("Vertical", 0))
sketch9.addConstraint(Sketcher.Constraint("Horizontal", 1))
sketch9.addConstraint(Sketcher.Constraint("Vertical", 2))
sketch9.addConstraint(Sketcher.Constraint("Horizontal", 3))
sketch9.addConstraint(Sketcher.Constraint("DistanceX", 1, 1, 1, 2, 6563.2))
sketch9.addConstraint(Sketcher.Constraint("DistanceY", 0, 1, 0, 2, 7606.2))
sketch9.addConstraint(Sketcher.Constraint("DistanceX", 0, 2, -1, 1, 3255.263303))
sketch9.addConstraint(Sketcher.Constraint("DistanceY", -1, 1, 0, 2, 4951.572915))
pad5 = body.newObject("PartDesign::Pad", "Pad004")
pad5.Profile = sketch9
pad5.Length = 228.6
pad5.Reversed = True

# Sketch on YZ plane
sketch10 = body.newObject("Sketcher::SketchObject", "Sketch009")
sketch10.AttachmentSupport = (doc.getObject("YZ_Plane"), [""])
sketch10.MapMode = "FlatFace"
sketch10.AttachmentOffset = App.Placement(V(0, 0, 3079.336697), App.Rotation())
sketch10.addGeometry(Part.LineSegment(V(-2553, 2260, 0), V(-2553, 2430, 0)), False)
sketch10.addGeometry(Part.LineSegment(V(-2553, 2430, 0), V(-2423, 2430, 0)), False)
sketch10.addGeometry(Part.LineSegment(V(-2423, 2430, 0), V(-2553, 2260, 0)), False)
sketch10.addConstraint(Sketcher.Constraint("Coincident", 0, 2, 1, 1))
sketch10.addConstraint(Sketcher.Constraint("Coincident", 1, 2, 2, 1))
sketch10.addConstraint(Sketcher.Constraint("Coincident", 2, 2, 0, 1))
sketch10.addConstraint(Sketcher.Constraint("Vertical", 0))
sketch10.addConstraint(Sketcher.Constraint("Horizontal", 1))
sketch10.addConstraint(Sketcher.Constraint("DistanceX", 1, 1, 1, 2, 130.0))
sketch10.addConstraint(Sketcher.Constraint("DistanceY", 0, 1, 0, 2, 170.0))
sketch10.addConstraint(Sketcher.Constraint("DistanceY", -1, 1, 0, 2, 2430.0))
sketch10.addConstraint(Sketcher.Constraint("DistanceX", 0, 2, -1, 1, 2553.027085))
pad6 = body.newObject("PartDesign::Pad", "Pad005")
pad6.Profile = sketch10
pad6.Length = 1020
pad6.Reversed = True

# Sketch on XY plane
sketch11 = body.newObject("Sketcher::SketchObject", "Sketch010")
sketch11.AttachmentSupport = (doc.getObject("XY_Plane"), [""])
sketch11.MapMode = "FlatFace"
sketch11.AttachmentOffset = App.Placement(V(0, 0, 2430), App.Rotation())
sketch11.addGeometry(Part.LineSegment(V(-3027, -282, 0), V(-3027, -2553, 0)), False)
sketch11.addGeometry(Part.LineSegment(V(-3027, -2553, 0), V(-475, -2553, 0)), False)
sketch11.addGeometry(Part.LineSegment(V(-475, -2553, 0), V(-475, -282, 0)), False)
sketch11.addGeometry(Part.LineSegment(V(-475, -282, 0), V(-3027, -282, 0)), False)
sketch11.addConstraint(Sketcher.Constraint("Coincident", 0, 2, 1, 1))
sketch11.addConstraint(Sketcher.Constraint("Coincident", 1, 2, 2, 1))
sketch11.addConstraint(Sketcher.Constraint("Coincident", 2, 2, 3, 1))
sketch11.addConstraint(Sketcher.Constraint("Coincident", 3, 2, 0, 1))
sketch11.addConstraint(Sketcher.Constraint("Vertical", 0))
sketch11.addConstraint(Sketcher.Constraint("Horizontal", 1))
sketch11.addConstraint(Sketcher.Constraint("Vertical", 2))
sketch11.addConstraint(Sketcher.Constraint("Horizontal", 3))
sketch11.addConstraint(Sketcher.Constraint("DistanceX", 1, 1, 1, 2, 2552.0))
sketch11.addConstraint(Sketcher.Constraint("DistanceY", 0, 2, 0, 1, 2271.0))
sketch11.addConstraint(Sketcher.Constraint("DistanceX", 0, 2, -1, 1, 3026.663303))
sketch11.addConstraint(Sketcher.Constraint("DistanceY", 0, 2, -1, 1, 2553.027085))
pocket5 = body.newObject("PartDesign::Pocket", "Pocket004")
pocket5.Profile = sketch11
pocket5.Length = 2430

# Sketch on XY plane
sketch12 = body.newObject("Sketcher::SketchObject", "Sketch011")
sketch12.AttachmentSupport = (doc.getObject("XY_Plane"), [""])
sketch12.MapMode = "FlatFace"
sketch12.AttachmentOffset = App.Placement(V(0, 0, 2430), App.Rotation())
sketch12.addGeometry(Part.LineSegment(V(-1543, 773, 0), V(-1543, -172, 0)), False)
sketch12.addGeometry(Part.LineSegment(V(-1543, -172, 0), V(-1433, -172, 0)), False)
sketch12.addGeometry(Part.LineSegment(V(-1433, -172, 0), V(-1433, 773, 0)), False)
sketch12.addGeometry(Part.LineSegment(V(-1433, 773, 0), V(-1543, 773, 0)), False)
sketch12.addConstraint(Sketcher.Constraint("Coincident", 0, 2, 1, 1))
sketch12.addConstraint(Sketcher.Constraint("Coincident", 1, 2, 2, 1))
sketch12.addConstraint(Sketcher.Constraint("Coincident", 2, 2, 3, 1))
sketch12.addConstraint(Sketcher.Constraint("Coincident", 3, 2, 0, 1))
sketch12.addConstraint(Sketcher.Constraint("Vertical", 0))
sketch12.addConstraint(Sketcher.Constraint("Horizontal", 1))
sketch12.addConstraint(Sketcher.Constraint("Vertical", 2))
sketch12.addConstraint(Sketcher.Constraint("Horizontal", 3))
sketch12.addConstraint(Sketcher.Constraint("DistanceX", 1, 1, 1, 2, 110.0))
sketch12.addConstraint(Sketcher.Constraint("DistanceY", 0, 2, 0, 1, 945.0))
sketch12.addConstraint(Sketcher.Constraint("DistanceX", 0, 2, -1, 1, 1542.663303))
sketch12.addConstraint(Sketcher.Constraint("DistanceY", 0, 2, -1, 1, 172.027085))
pocket6 = body.newObject("PartDesign::Pocket", "Pocket005")
pocket6.Profile = sketch12
pocket6.Length = 2430
body2 = doc.addObject("PartDesign::Body", "Body001")

# Sketch on XY plane
sketch13 = body2.newObject("Sketcher::SketchObject", "Sketch012")
sketch13.AttachmentSupport = (doc.getObject("XY_Plane001"), [""])
sketch13.MapMode = "FlatFace"
sketch13.AttachmentOffset = App.Placement(V(0, 0, 2430), App.Rotation())
sketch13.addGeometry(Part.LineSegment(V(-1433, -172, 0), V(-1433, -282, 0)), False)
sketch13.addGeometry(Part.LineSegment(V(-1433, -282, 0), V(-443, -282, 0)), False)
sketch13.addGeometry(Part.LineSegment(V(-443, -282, 0), V(-443, -172, 0)), False)
sketch13.addGeometry(Part.LineSegment(V(-443, -172, 0), V(-1433, -172, 0)), False)
sketch13.addConstraint(Sketcher.Constraint("Coincident", 0, 2, 1, 1))
sketch13.addConstraint(Sketcher.Constraint("Coincident", 1, 2, 2, 1))
sketch13.addConstraint(Sketcher.Constraint("Coincident", 2, 2, 3, 1))
sketch13.addConstraint(Sketcher.Constraint("Coincident", 3, 2, 0, 1))
sketch13.addConstraint(Sketcher.Constraint("Vertical", 0))
sketch13.addConstraint(Sketcher.Constraint("Horizontal", 1))
sketch13.addConstraint(Sketcher.Constraint("Vertical", 2))
sketch13.addConstraint(Sketcher.Constraint("Horizontal", 3))
sketch13.addConstraint(Sketcher.Constraint("DistanceX", 1, 1, 1, 2, 990.0))
sketch13.addConstraint(Sketcher.Constraint("DistanceY", 0, 2, 0, 1, 110.0))
sketch13.addConstraint(Sketcher.Constraint("DistanceX", 0, 2, -1, 1, 1432.663303))
sketch13.addConstraint(Sketcher.Constraint("DistanceY", 0, 2, -1, 1, 282.027085))
pad7 = body2.newObject("PartDesign::Pad", "Pad006")
pad7.Profile = sketch13
pad7.Length = 2430
pad7.Reversed = True

doc.recompute()
